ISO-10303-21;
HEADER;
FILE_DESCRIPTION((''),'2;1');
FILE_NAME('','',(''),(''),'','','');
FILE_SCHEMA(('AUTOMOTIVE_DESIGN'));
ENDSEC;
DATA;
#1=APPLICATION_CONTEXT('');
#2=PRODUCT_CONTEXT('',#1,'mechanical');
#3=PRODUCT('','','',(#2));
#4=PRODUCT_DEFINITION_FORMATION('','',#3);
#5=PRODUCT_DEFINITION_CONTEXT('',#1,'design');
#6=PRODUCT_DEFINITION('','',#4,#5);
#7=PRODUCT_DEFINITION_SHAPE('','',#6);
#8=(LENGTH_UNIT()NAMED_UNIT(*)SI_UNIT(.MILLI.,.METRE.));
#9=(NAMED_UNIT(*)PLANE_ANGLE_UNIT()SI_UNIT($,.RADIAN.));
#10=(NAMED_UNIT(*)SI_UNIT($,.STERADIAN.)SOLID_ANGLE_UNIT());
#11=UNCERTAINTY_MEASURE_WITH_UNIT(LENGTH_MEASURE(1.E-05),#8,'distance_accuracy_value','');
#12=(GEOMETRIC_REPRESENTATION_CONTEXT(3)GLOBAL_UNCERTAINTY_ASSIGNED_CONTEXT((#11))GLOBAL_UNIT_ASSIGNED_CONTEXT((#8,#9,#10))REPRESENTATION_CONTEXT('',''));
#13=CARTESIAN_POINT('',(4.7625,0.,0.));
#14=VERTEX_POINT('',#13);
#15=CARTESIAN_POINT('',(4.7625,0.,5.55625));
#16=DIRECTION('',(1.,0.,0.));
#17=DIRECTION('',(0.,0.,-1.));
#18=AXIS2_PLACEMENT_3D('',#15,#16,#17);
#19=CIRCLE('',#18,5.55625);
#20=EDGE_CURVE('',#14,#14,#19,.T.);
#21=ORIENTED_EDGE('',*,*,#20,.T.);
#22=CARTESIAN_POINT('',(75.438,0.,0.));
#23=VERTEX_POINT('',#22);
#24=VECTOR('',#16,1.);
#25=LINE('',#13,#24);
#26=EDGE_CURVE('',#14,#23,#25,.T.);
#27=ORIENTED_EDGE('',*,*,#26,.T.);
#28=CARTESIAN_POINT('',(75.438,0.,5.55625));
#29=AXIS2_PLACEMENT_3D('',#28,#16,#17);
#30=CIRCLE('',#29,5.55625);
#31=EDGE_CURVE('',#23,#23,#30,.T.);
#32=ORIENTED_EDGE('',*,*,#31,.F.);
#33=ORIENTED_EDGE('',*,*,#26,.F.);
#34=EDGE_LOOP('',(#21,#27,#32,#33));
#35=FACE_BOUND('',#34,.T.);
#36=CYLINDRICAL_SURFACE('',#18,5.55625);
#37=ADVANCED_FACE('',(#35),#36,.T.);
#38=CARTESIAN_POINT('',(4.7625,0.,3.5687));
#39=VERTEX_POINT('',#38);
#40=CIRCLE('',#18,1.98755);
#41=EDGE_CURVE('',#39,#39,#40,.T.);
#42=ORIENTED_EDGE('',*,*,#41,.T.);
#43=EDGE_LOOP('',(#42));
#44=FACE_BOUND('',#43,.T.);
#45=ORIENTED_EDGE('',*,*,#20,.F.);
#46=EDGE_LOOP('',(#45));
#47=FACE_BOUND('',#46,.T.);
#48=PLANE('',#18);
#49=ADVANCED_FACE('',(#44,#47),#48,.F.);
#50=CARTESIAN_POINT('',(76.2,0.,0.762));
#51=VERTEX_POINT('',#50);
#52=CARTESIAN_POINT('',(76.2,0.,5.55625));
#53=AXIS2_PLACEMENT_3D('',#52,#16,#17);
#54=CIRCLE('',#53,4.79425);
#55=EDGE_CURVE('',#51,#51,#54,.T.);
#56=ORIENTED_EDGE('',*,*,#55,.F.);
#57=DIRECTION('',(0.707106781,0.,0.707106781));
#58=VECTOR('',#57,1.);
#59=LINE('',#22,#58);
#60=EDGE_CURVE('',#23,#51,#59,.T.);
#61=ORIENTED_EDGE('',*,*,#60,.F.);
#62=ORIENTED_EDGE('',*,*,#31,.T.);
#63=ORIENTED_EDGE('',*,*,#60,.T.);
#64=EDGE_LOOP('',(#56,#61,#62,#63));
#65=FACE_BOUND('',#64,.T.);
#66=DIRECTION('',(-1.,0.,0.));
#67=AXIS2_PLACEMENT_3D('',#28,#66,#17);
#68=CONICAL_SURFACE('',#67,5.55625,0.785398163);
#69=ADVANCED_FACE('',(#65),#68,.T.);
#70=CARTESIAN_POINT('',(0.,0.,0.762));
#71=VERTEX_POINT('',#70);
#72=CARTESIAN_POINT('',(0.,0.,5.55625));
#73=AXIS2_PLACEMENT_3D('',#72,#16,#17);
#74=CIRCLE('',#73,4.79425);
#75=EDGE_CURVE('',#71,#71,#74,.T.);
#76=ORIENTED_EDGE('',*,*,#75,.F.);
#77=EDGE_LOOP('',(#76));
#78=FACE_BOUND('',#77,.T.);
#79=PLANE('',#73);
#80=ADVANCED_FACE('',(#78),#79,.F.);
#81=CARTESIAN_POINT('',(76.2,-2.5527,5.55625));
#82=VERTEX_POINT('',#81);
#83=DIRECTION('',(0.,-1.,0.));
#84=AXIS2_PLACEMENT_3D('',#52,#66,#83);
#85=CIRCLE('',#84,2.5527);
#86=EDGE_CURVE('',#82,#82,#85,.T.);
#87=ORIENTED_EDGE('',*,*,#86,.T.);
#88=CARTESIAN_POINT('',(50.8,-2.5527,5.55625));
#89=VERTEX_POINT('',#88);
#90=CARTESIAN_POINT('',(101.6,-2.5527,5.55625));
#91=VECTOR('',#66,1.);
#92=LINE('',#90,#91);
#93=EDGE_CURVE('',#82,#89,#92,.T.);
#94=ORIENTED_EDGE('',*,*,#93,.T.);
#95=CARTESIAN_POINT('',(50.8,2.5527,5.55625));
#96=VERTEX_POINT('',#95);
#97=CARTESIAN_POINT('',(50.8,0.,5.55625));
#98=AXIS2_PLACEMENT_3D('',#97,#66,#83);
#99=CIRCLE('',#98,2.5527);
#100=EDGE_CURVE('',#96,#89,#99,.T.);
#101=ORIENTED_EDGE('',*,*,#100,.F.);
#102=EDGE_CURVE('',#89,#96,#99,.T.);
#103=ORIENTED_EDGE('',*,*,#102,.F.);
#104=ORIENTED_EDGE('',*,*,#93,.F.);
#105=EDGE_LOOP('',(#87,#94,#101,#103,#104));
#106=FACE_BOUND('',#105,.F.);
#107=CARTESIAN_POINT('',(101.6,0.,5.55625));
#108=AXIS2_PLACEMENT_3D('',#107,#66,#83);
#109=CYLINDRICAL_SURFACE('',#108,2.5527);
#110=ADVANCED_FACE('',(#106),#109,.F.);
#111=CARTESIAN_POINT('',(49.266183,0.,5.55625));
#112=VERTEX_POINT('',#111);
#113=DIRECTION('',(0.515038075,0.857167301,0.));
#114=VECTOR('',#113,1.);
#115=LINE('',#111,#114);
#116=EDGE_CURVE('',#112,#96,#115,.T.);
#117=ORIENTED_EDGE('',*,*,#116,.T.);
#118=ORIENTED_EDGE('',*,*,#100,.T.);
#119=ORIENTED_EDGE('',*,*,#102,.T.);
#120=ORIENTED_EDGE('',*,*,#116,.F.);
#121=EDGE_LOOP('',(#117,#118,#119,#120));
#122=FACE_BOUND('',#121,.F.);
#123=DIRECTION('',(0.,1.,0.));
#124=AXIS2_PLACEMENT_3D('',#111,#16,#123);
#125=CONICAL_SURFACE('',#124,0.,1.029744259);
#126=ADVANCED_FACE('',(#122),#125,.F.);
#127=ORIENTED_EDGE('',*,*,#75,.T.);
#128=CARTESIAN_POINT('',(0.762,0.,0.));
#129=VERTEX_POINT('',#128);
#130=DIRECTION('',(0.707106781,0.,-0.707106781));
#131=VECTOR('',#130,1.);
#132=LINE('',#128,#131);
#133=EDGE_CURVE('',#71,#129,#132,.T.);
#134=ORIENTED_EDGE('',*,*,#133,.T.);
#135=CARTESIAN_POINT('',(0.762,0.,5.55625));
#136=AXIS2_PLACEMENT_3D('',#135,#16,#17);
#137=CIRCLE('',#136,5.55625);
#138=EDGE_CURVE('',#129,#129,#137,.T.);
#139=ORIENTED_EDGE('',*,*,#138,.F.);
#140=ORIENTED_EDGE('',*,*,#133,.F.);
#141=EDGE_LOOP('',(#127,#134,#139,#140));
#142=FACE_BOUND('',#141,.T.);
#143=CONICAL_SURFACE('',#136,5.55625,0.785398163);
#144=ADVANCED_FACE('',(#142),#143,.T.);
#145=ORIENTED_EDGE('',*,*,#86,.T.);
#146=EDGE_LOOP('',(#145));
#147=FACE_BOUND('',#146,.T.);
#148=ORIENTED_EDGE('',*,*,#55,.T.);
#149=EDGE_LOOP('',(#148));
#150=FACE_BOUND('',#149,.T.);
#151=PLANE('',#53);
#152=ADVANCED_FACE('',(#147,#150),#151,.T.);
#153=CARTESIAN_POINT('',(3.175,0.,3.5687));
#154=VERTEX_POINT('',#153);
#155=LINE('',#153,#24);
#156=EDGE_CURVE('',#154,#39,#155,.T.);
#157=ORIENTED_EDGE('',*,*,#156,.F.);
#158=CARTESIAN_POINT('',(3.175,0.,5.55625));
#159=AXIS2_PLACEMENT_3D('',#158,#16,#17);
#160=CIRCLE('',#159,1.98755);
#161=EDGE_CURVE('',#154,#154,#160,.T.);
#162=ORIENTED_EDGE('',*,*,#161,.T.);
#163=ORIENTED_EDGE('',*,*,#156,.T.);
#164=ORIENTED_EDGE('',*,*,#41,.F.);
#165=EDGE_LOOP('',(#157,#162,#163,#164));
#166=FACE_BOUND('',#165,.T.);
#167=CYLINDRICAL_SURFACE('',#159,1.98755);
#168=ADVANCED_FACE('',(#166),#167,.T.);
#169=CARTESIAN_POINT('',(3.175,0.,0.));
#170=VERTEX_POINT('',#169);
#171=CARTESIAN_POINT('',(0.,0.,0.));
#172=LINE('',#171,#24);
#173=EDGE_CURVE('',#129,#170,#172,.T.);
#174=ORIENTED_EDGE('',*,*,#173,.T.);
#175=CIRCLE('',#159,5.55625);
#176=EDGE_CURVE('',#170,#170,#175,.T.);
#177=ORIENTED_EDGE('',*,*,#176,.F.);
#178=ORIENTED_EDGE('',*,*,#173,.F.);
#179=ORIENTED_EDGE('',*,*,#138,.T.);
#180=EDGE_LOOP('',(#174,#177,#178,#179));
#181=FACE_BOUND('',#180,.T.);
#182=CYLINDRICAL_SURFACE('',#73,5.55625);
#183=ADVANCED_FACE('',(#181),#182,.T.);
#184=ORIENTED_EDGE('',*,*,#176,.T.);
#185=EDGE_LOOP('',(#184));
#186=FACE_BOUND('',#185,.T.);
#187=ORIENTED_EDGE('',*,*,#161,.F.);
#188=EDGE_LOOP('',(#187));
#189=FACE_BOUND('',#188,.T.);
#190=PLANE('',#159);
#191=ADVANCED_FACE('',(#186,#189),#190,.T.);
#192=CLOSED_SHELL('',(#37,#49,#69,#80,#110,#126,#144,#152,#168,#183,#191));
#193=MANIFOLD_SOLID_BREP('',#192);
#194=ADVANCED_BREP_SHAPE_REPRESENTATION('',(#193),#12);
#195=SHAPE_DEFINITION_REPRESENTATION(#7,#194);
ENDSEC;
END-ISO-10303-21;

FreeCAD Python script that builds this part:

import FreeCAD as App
import Part
import Sketcher
Q = App.Units.Quantity


def edges_at(feature, points):
    """Names of the edges that pass closest to the given points."""
    edges = feature.Shape.Edges
    near = lambda p: min(range(len(edges)), key=lambda i: edges[i].distToShape(Part.Vertex(*p))[0])
    return sorted({f"Edge{near(p) + 1}" for p in points})


def add_polygon(sketch, points):
    """Adds a closed chain of lines whose ends are joined by coincident constraints."""
    first, n = sketch.GeometryCount, len(points)
    for a, b in zip(points, points[1:] + points[:1]):
        sketch.addGeometry(Part.LineSegment(App.Vector(*a, 0), App.Vector(*b, 0)), False)
    for i in range(n):
        sketch.addConstraint(Sketcher.Constraint("Coincident", first + i, 2, first + (i + 1) % n, 1))

doc = App.newDocument("Part")
params = doc.addObject("Spreadsheet::Sheet", "Params")
for row, (alias, value) in enumerate([
    ("sketch1_width", "3 in"),
    ("sketch1_width2", "2.8125 in"),
    ("sketch1_width3", "0.125 in"),
    ("sketch1_height", "0.21875 in"),
    ("revolution_angle", "360 deg"),
    ("chamfer_size", "0.03 in"),
    ("sketch2_diameter", "0.201 in"),
    ("hole_diameter", "0.201 in"),
    ("hole_depth", "1 in"),
], start=1):
    params.set(f"A{row}", alias)
    params.set(f"B{row}", "=" + value)
    params.setAlias(f"B{row}", alias)

body = doc.addObject("PartDesign::Body", "Body")

# Sketch on XZ plane
sketch1 = body.newObject("Sketcher::SketchObject", "Sketch")
sketch1.AttachmentSupport = (doc.getObject("XZ_Plane"), [""])
sketch1.MapMode = "FlatFace"
add_polygon(sketch1, [(4.8, 0), (76.2, 0), (76.2, 5.6), (0, 5.6), (0, 0), (3.2, 0), (3.2, 3.6), (4.8, 3.6)])  # lines 0-7
sketch1.addGeometry(Part.LineSegment(App.Vector(0, 5.6, 0), App.Vector(76.2, 5.6, 0)), True)  # axis
sketch1.addConstraint([
    Sketcher.Constraint("Horizontal", 0),
    Sketcher.Constraint("Vertical", 1),
    Sketcher.Constraint("Horizontal", 2),
    Sketcher.Constraint("Vertical", 3),
    Sketcher.Constraint("Horizontal", 4),
    Sketcher.Constraint("Vertical", 5),
    Sketcher.Constraint("Horizontal", 6),
    Sketcher.Constraint("Vertical", 7),
    Sketcher.Constraint("Horizontal", 8),
    Sketcher.Constraint("Coincident", 3, 2, -1, 1),
    Sketcher.Constraint("Coincident", 8, 1, 2, 2),
    Sketcher.Constraint("PointOnObject", 0, 2, -1),
    Sketcher.Constraint("Vertical", 0, 2, 8, 2),
    Sketcher.Constraint("DistanceX", 2, 2, 2, 1, Q("3 in")),
    Sketcher.Constraint("DistanceX", 0, 1, 0, 2, Q("2.8125 in")),
    Sketcher.Constraint("DistanceX", 4, 1, 4, 2, Q("0.125 in")),
    Sketcher.Constraint("DistanceY", 1, 1, 1, 2, Q("0.21875 in")),
    Sketcher.Constraint("DistanceY", 5, 1, 5, 2, Q("0.1405 in")),
])
sketch1.setExpression("Constraints[21]", "Params.sketch1_width")
sketch1.setExpression("Constraints[22]", "Params.sketch1_width2")
sketch1.setExpression("Constraints[23]", "Params.sketch1_width3")
sketch1.setExpression("Constraints[24]", "Params.sketch1_height")
revolution = body.newObject("PartDesign::Revolution", "Revolution")
revolution.Profile = sketch1
revolution.ReferenceAxis = (sketch1, ["Axis0"])
revolution.setExpression("Angle", "Params.revolution_angle")
doc.recompute()

chamfer = body.newObject("PartDesign::Chamfer", "Chamfer")
chamfer.Base = (revolution, edges_at(revolution, [(0, 0, 11.113), (76.2, 0, 11.113)]))
chamfer.setExpression("Size", "Params.chamfer_size")

# Sketch on YZ plane
sketch2 = body.newObject("Sketcher::SketchObject", "Sketch001")
sketch2.AttachmentSupport = (doc.getObject("YZ_Plane"), [""])
sketch2.MapMode = "FlatFace"
sketch2.AttachmentOffset = App.Placement(App.Vector(0, 0, 3 * 25.4), App.Rotation())
sketch2.addGeometry(Part.Circle(App.Vector(0, 5.6, 0), App.Vector(0, 0, 1), 2.6), False)
sketch2.addConstraint([
    Sketcher.Constraint("PointOnObject", 0, 3, -2),
    Sketcher.Constraint("Diameter", 0, Q("0.201 in")),
    Sketcher.Constraint("DistanceY", -1, 1, 0, 3, Q("0.21875 in")),
])
sketch2.setExpression("Constraints[1]", "Params.sketch2_diameter")
doc.recompute()
hole = body.newObject("PartDesign::Hole", "Hole")
hole.Profile = sketch2
hole.ThreadType = "None"
hole.setExpression("Diameter", "Params.hole_diameter")
hole.DepthType = "Dimension"
hole.setExpression("Depth", "Params.hole_depth")
hole.DrillPoint = "Angled"
hole.DrillPointAngle = 118

doc.recompute()
